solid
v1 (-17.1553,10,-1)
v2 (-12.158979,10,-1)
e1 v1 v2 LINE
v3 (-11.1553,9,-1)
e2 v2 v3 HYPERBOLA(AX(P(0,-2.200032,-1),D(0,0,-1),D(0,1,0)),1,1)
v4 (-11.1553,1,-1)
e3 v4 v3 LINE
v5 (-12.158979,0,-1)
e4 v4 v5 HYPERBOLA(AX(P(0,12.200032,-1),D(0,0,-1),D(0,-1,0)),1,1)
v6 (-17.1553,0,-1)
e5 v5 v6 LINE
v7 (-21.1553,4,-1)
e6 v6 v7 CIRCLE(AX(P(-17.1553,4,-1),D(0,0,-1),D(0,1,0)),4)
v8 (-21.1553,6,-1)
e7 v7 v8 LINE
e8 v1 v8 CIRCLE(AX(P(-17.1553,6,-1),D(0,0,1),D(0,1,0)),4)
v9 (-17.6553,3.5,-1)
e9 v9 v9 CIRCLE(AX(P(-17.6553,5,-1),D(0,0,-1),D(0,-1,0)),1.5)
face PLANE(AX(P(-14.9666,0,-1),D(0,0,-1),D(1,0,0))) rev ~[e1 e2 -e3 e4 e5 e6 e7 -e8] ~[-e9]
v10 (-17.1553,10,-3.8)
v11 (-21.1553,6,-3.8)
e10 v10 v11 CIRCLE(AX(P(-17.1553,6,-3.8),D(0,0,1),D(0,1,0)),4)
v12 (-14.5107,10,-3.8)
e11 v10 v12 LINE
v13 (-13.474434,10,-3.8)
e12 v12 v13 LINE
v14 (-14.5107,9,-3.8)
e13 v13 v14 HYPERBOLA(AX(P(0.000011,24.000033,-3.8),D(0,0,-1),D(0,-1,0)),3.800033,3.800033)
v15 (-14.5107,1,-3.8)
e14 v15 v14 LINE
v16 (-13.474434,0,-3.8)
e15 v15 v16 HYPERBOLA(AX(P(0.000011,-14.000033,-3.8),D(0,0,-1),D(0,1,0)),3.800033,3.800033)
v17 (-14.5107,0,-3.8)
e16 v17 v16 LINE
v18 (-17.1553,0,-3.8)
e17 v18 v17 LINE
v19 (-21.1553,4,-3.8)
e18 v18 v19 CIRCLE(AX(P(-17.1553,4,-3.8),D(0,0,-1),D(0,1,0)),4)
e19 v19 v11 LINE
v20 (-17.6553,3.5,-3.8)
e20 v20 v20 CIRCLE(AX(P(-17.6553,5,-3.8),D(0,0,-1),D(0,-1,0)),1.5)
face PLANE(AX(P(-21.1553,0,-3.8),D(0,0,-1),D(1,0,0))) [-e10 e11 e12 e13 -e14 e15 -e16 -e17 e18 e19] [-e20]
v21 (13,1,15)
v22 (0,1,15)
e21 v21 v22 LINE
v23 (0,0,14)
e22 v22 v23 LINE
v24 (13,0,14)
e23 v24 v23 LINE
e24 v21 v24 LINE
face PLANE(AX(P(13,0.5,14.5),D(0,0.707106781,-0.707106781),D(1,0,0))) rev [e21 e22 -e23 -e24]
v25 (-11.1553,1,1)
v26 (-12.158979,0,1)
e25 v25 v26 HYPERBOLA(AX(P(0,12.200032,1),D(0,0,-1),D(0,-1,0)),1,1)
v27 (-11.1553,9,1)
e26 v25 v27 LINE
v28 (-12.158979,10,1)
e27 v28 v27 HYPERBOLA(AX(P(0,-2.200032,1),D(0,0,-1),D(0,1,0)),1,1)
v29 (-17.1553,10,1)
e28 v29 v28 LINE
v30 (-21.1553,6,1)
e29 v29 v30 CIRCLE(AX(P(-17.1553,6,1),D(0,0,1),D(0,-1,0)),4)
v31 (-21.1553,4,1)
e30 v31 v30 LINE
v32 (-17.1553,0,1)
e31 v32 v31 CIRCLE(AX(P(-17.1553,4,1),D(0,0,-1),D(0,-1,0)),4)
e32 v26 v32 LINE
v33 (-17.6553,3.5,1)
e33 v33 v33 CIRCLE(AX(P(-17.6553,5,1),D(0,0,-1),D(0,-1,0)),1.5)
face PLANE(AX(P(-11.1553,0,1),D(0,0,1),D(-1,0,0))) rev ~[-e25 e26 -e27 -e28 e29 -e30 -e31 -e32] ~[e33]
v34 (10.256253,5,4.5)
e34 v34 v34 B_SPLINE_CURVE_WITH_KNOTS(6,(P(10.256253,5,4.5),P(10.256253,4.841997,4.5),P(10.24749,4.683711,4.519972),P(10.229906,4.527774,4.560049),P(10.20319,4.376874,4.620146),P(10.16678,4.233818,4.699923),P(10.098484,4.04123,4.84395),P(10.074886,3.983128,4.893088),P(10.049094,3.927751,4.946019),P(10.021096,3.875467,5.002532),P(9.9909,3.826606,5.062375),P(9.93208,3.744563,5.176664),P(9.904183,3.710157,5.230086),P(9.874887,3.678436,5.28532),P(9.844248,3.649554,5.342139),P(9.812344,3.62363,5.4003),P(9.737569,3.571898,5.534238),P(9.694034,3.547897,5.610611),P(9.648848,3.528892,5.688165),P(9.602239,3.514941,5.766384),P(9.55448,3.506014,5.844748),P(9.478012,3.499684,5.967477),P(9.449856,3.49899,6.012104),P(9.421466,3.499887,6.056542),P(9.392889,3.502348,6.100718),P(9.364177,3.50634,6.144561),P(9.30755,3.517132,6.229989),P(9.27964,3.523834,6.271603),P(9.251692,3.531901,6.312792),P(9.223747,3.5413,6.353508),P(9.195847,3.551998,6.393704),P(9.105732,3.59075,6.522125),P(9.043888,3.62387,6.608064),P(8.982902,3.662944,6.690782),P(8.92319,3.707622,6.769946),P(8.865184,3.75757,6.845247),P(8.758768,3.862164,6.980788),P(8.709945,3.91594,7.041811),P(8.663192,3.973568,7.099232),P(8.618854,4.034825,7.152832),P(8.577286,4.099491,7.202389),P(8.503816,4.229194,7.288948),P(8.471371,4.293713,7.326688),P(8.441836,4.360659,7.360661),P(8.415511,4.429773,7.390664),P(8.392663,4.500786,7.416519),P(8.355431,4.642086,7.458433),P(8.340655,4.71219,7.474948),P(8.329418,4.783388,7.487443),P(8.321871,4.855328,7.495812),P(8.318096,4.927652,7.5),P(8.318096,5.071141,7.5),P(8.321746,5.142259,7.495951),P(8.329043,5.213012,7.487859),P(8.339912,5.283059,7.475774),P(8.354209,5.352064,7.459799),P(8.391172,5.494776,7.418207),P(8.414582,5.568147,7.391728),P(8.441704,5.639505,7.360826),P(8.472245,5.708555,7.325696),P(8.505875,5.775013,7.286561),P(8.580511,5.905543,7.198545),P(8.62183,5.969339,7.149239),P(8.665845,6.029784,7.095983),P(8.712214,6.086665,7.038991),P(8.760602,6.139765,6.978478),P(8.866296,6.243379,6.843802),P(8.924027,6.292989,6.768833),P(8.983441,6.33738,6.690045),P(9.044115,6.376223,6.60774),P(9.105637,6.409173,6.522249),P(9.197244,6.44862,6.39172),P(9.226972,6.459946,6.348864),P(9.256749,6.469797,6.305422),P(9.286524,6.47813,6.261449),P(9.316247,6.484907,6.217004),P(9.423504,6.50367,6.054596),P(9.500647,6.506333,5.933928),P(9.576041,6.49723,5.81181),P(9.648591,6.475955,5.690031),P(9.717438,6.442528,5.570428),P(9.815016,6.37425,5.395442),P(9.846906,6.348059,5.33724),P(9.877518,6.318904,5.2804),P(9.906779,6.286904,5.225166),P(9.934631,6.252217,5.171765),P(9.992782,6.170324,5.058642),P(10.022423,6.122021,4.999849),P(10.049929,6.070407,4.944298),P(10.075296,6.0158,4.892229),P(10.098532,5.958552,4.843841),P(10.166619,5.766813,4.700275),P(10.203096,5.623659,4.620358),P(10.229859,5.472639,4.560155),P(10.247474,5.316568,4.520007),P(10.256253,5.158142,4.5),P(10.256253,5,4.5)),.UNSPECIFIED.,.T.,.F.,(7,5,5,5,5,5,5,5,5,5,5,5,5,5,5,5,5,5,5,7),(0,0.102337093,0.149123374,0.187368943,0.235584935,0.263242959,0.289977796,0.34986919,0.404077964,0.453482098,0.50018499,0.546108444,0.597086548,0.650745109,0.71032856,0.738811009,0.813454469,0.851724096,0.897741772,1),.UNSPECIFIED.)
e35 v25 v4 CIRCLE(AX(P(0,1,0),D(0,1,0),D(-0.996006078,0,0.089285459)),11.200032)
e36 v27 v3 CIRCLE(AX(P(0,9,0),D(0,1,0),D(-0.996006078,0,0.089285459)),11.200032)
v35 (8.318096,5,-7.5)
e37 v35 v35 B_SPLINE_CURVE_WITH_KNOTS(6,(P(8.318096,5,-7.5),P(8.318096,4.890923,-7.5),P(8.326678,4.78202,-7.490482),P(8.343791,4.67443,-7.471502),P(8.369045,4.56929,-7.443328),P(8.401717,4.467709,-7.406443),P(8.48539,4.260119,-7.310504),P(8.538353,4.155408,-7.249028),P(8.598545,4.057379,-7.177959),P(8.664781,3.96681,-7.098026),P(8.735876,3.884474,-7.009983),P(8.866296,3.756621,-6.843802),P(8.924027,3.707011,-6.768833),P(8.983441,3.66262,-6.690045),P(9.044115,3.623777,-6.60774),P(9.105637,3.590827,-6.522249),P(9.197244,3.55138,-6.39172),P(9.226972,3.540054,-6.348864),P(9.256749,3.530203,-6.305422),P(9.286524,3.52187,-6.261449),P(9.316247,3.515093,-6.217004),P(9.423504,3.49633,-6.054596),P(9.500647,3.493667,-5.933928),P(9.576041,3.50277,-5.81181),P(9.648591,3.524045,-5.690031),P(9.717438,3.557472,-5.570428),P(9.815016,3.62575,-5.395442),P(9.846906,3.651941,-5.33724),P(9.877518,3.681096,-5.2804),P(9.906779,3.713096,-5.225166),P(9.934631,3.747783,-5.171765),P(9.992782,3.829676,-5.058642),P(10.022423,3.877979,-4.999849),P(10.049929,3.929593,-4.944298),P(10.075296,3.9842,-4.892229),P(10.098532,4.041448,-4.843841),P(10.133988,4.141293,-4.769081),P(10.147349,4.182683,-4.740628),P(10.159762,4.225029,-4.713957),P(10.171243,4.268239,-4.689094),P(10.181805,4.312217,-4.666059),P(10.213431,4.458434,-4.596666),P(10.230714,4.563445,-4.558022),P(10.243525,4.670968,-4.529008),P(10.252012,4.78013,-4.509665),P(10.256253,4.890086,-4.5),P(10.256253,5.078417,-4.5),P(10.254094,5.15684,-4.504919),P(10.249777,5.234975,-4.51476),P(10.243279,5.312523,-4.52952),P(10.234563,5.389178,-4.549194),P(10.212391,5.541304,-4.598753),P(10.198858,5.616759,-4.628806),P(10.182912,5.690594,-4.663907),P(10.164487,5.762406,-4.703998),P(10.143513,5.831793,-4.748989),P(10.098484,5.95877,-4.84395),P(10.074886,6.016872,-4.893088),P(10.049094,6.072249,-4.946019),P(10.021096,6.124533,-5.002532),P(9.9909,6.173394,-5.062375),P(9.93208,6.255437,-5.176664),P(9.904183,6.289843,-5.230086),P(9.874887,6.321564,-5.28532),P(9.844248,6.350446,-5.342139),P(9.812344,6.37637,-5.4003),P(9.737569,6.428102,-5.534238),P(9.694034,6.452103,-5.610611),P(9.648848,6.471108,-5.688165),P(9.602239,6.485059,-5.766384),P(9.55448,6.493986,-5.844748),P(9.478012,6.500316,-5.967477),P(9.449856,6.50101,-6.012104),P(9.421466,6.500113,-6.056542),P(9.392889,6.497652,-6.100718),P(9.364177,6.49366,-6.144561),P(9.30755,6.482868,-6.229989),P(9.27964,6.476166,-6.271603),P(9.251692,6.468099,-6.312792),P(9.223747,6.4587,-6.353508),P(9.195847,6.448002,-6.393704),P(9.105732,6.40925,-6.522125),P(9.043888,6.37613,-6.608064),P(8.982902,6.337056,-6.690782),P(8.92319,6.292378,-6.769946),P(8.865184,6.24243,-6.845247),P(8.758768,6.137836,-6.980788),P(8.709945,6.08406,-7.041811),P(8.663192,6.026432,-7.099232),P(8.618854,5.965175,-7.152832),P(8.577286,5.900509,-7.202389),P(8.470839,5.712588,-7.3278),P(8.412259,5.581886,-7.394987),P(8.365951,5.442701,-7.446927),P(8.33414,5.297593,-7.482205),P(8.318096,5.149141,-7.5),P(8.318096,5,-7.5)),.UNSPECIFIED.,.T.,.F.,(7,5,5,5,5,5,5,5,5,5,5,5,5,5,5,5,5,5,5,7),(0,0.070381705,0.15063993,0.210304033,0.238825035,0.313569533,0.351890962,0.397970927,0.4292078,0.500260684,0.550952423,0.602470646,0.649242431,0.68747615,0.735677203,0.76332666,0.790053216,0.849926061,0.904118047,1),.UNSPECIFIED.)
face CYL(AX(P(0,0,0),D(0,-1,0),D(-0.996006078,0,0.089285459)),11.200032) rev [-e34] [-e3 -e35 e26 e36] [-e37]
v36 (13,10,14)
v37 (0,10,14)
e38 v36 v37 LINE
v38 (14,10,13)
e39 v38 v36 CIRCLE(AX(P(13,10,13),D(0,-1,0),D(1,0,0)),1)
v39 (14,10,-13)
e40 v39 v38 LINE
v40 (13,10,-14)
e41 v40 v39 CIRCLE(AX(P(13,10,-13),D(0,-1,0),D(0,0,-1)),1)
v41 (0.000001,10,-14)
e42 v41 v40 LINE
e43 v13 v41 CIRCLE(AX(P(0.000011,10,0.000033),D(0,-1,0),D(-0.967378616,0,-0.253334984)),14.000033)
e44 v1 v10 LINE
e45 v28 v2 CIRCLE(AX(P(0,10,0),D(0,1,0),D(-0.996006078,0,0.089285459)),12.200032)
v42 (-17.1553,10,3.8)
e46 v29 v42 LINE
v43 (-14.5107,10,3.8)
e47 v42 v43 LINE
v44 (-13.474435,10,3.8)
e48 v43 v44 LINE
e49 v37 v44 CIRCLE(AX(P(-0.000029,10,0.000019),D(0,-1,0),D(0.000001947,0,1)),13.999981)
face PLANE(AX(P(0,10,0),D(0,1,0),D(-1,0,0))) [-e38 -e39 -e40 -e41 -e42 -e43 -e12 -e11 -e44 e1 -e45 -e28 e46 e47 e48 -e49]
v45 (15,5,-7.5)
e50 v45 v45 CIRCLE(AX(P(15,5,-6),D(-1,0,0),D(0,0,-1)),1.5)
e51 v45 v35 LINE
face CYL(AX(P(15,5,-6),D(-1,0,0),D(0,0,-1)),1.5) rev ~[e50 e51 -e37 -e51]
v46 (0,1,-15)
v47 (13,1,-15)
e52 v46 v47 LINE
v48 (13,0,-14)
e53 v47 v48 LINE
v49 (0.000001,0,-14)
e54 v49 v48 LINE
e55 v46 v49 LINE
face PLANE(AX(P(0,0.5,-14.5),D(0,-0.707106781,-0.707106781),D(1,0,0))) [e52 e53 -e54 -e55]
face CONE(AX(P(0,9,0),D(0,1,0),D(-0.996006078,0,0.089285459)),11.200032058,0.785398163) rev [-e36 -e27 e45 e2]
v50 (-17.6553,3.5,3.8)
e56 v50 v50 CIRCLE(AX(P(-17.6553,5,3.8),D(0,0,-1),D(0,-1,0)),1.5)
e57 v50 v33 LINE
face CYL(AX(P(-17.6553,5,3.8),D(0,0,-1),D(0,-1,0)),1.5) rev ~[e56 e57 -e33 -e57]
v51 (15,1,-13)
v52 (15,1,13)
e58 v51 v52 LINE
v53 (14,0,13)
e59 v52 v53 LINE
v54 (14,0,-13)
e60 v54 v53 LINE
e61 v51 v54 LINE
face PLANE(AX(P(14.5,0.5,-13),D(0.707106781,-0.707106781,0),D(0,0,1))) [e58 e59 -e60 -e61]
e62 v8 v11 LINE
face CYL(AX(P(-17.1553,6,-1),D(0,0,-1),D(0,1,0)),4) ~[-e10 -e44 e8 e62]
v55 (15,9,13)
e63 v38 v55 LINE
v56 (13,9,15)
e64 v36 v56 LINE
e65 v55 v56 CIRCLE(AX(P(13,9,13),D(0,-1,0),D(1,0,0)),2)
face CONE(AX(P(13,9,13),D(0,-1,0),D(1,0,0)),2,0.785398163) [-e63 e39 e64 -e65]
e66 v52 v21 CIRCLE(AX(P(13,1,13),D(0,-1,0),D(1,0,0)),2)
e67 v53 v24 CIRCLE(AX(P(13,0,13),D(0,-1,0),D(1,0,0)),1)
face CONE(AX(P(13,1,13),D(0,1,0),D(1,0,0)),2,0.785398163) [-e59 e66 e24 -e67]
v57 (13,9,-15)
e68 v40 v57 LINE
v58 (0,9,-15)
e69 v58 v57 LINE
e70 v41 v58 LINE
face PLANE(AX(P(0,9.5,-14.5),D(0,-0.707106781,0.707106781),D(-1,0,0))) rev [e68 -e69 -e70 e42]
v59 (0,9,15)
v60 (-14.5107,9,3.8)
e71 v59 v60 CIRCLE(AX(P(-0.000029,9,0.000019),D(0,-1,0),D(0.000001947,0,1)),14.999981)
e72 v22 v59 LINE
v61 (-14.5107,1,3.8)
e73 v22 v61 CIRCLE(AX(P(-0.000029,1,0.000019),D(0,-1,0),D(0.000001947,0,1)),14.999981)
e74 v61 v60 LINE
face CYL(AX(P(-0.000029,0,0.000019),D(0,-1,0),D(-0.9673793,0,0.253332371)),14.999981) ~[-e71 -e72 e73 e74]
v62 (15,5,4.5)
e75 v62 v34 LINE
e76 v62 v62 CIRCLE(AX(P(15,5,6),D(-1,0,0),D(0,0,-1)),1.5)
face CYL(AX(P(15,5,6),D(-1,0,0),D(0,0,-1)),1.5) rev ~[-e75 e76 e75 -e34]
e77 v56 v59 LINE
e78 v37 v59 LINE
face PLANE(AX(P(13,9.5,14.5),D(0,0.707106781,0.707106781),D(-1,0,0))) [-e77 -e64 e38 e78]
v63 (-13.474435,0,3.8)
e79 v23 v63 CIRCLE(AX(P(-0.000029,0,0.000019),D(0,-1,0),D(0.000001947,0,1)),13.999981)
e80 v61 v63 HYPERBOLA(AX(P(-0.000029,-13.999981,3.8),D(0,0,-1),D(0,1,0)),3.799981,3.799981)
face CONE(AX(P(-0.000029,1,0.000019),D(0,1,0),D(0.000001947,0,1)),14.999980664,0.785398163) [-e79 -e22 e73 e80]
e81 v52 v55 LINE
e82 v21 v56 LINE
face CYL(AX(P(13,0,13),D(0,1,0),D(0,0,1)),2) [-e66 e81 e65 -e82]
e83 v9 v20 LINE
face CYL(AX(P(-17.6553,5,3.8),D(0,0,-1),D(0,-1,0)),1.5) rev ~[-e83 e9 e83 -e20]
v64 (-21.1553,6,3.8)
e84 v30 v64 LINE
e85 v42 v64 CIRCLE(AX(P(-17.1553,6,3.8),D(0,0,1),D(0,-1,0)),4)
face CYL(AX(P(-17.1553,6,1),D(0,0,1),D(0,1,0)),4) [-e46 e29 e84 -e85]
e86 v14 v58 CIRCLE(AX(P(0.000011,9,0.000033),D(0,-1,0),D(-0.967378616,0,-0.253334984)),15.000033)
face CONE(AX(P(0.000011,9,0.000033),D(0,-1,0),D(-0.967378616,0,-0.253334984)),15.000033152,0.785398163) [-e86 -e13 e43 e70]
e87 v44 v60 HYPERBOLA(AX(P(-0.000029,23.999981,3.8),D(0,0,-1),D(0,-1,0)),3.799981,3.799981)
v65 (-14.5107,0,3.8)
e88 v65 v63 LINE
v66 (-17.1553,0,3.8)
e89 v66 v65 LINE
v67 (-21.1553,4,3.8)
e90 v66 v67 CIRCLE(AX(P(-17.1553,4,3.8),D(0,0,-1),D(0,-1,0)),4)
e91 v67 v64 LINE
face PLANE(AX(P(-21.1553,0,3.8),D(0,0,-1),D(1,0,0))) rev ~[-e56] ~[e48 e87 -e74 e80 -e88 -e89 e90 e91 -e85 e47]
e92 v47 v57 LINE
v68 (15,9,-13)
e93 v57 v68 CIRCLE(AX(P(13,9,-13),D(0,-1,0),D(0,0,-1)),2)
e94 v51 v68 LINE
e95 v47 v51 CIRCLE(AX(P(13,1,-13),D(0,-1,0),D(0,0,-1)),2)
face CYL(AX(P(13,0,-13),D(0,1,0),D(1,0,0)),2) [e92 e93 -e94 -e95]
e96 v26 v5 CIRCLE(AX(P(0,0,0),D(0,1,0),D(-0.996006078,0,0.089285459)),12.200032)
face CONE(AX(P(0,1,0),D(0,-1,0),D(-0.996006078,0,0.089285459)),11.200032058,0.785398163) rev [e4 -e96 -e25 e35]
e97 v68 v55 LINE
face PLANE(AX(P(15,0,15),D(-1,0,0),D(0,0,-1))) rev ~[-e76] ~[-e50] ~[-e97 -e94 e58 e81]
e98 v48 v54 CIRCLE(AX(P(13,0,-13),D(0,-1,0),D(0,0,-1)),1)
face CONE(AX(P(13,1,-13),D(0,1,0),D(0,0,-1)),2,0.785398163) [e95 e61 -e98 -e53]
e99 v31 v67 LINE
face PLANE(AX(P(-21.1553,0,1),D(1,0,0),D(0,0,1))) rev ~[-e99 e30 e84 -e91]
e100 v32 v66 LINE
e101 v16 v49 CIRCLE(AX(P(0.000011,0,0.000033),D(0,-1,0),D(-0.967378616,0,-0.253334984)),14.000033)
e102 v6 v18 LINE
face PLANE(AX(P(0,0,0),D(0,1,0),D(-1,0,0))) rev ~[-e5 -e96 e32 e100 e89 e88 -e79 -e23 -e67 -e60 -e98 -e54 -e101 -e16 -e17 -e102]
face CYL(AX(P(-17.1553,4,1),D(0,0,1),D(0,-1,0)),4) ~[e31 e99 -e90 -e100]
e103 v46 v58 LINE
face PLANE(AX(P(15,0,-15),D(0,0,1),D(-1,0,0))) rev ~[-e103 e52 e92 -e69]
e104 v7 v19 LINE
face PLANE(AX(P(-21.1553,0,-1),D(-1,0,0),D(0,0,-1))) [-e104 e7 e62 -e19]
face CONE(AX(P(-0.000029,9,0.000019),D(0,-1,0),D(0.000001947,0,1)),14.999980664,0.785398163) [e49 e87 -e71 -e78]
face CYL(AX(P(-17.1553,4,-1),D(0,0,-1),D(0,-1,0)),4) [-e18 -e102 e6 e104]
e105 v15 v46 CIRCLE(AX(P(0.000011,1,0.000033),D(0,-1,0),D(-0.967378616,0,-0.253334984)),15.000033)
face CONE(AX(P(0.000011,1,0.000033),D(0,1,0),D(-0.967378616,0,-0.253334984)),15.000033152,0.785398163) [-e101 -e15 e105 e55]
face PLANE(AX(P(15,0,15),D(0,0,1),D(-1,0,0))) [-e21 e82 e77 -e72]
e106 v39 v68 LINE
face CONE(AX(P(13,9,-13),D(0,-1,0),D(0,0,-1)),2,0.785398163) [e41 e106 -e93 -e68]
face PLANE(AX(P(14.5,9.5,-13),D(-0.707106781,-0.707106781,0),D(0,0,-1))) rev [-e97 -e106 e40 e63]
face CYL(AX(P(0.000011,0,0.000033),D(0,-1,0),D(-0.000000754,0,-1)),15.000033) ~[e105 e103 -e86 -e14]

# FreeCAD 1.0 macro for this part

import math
import FreeCAD as App
import Part
import Sketcher
Q = App.Units.Quantity


def edges_at(feature, points):
    """Names of the edges that pass closest to the given points."""
    edges = feature.Shape.Edges
    near = lambda p: min(range(len(edges)), key=lambda i: edges[i].distToShape(Part.Vertex(*p))[0])
    return sorted({f"Edge{near(p) + 1}" for p in points})

doc = App.newDocument("Part")
body = doc.addObject("PartDesign::Body", "Body")

sketch1 = body.newObject("Sketcher::SketchObject", "Sketch")
sketch1.AttachmentSupport = (doc.getObject("XZ_Plane"), [""])
sketch1.MapMode = "FlatFace"
sketch1.addGeometry([
    Part.ArcOfCircle(Part.Circle(App.Vector(0, 0, 0), App.Vector(0, 0, 1), 11.2), math.radians(-175), math.radians(175)),
    Part.LineSegment(App.Vector(-11.2, 1, 0), App.Vector(-21.2, 1, 0)),
    Part.LineSegment(App.Vector(-21.2, 1, 0), App.Vector(-21.2, 3.8, 0)),
    Part.LineSegment(App.Vector(-21.2, 3.8, 0), App.Vector(-14.5, 3.8, 0)),
    Part.ArcOfCircle(Part.Circle(App.Vector(0, 0, 0), App.Vector(0, 0, 1), 15), math.radians(90), math.radians(165)),
    Part.LineSegment(App.Vector(0, 15, 0), App.Vector(15, 15, 0)),
    Part.LineSegment(App.Vector(15, 15, 0), App.Vector(15, -15, 0)),
    Part.LineSegment(App.Vector(15, -15, 0), App.Vector(0, -15, 0)),
    Part.ArcOfCircle(Part.Circle(App.Vector(0, 0, 0), App.Vector(0, 0, 1), 15), math.radians(-165), math.radians(-90)),
    Part.LineSegment(App.Vector(-14.5, -3.8, 0), App.Vector(-21.2, -3.8, 0)),
    Part.LineSegment(App.Vector(-21.2, -3.8, 0), App.Vector(-21.2, -1, 0)),
    Part.LineSegment(App.Vector(-21.2, -1, 0), App.Vector(-11.2, -1, 0)),
], False)
sketch1.addConstraint([
    Sketcher.Constraint("Coincident", 0, 2, 1, 1),
    Sketcher.Constraint("Coincident", 1, 2, 2, 1),
    Sketcher.Constraint("Coincident", 2, 2, 3, 1),
    Sketcher.Constraint("Coincident", 3, 2, 4, 2),
    Sketcher.Constraint("Tangent", 4, 1, 5, 1),
    Sketcher.Constraint("Coincident", 5, 2, 6, 1),
    Sketcher.Constraint("Coincident", 6, 2, 7, 1),
    Sketcher.Constraint("Tangent", 7, 2, 8, 2),
    Sketcher.Constraint("Coincident", 8, 1, 9, 1),
    Sketcher.Constraint("Coincident", 9, 2, 10, 1),
    Sketcher.Constraint("Coincident", 10, 2, 11, 1),
    Sketcher.Constraint("Coincident", 11, 2, 0, 1),
    Sketcher.Constraint("Horizontal", 1),
    Sketcher.Constraint("Vertical", 2),
    Sketcher.Constraint("Horizontal", 3),
    Sketcher.Constraint("Horizontal", 5),
    Sketcher.Constraint("Vertical", 6),
    Sketcher.Constraint("Horizontal", 7),
    Sketcher.Constraint("Horizontal", 9),
    Sketcher.Constraint("Vertical", 10),
    Sketcher.Constraint("Horizontal", 11),
    Sketcher.Constraint("Coincident", 0, 3, -1, 1),
    Sketcher.Constraint("Coincident", 4, 3, -1, 1),
    Sketcher.Constraint("Coincident", 8, 3, -1, 1),
    Sketcher.Constraint("Equal", 4, 8),
    Sketcher.Constraint("Symmetric", 2, 2, 9, 2, -1),
    Sketcher.Constraint("Vertical", 0, 2, 11, 2),
    Sketcher.Constraint("Radius", 4, Q("15 mm")),
    Sketcher.Constraint("Radius", 0, Q("11.2 mm")),
    Sketcher.Constraint("DistanceY", 2, 1, 2, 2, Q("2.8 mm")),
    Sketcher.Constraint("DistanceX", 1, 2, 1, 1, Q("10 mm")),
    Sketcher.Constraint("DistanceX", 5, 1, 5, 2, Q("15 mm")),
    Sketcher.Constraint("DistanceY", -1, 1, 0, 2, Q("1 mm")),
])
pad1 = body.newObject("PartDesign::Pad", "Pad")
pad1.Profile = sketch1
pad1.Length = 10
pad1.Reversed = True

sketch2 = body.newObject("Sketcher::SketchObject", "Sketch001")
sketch2.AttachmentSupport = (doc.getObject("YZ_Plane"), [""])
sketch2.MapMode = "FlatFace"
sketch2.AttachmentOffset = App.Placement(App.Vector(0, 0, 15), App.Rotation())
sketch2.addGeometry([
    Part.Circle(App.Vector(5, -6, 0), App.Vector(0, 0, 1), 1.5),
    Part.Circle(App.Vector(5, 6, 0), App.Vector(0, 0, 1), 1.5),
], False)
sketch2.addConstraint([
    Sketcher.Constraint("Equal", 0, 1),
    Sketcher.Constraint("Symmetric", 0, 3, 1, 3, -1),
    Sketcher.Constraint("Diameter", 0, Q("3 mm")),
    Sketcher.Constraint("DistanceX", -1, 1, 0, 3, Q("5 mm")),
    Sketcher.Constraint("DistanceY", 0, 3, -1, 1, Q("6 mm")),
])
doc.recompute()
hole = body.newObject("PartDesign::Hole", "Hole")
hole.Profile = sketch2
hole.ThreadType = "None"
hole.Diameter = 3
hole.DepthType = "Dimension"
hole.Depth = 8
hole.DrillPoint = "Angled"
hole.DrillPointAngle = 118
doc.recompute()

fillet = body.newObject("PartDesign::Fillet", "Fillet")
fillet.Base = (hole, edges_at(hole, [
    (-21.155, 10, 2.4),
    (-21.155, 10, -2.4),
    (-21.155, 0, 2.4),
    (-21.155, 0, -2.4),
]))
fillet.Radius = 4

sketch3 = body.newObject("Sketcher::SketchObject", "Sketch002")
sketch3.AttachmentSupport = (doc.getObject("XY_Plane"), [""])
sketch3.MapMode = "FlatFace"
sketch3.AttachmentOffset = App.Placement(App.Vector(0, 0, 3.8), App.Rotation())
sketch3.addGeometry(Part.Circle(App.Vector(-17.7, 5, 0), App.Vector(0, 0, 1), 1.5), False)
sketch3.addConstraint([
    Sketcher.Constraint("Diameter", 0, Q("3 mm")),
    Sketcher.Constraint("DistanceY", -1, 1, 0, 3, Q("5 mm")),
    Sketcher.Constraint("DistanceX", 0, 3, -1, 1, Q("17.6553 mm")),
])
doc.recompute()
hole2 = body.newObject("PartDesign::Hole", "Hole001")
hole2.Profile = sketch3
hole2.ThreadType = "None"
hole2.Diameter = 3
hole2.DepthType = "Dimension"
hole2.Depth = 8
hole2.DrillPoint = "Angled"
hole2.DrillPointAngle = 118
doc.recompute()

fillet2 = body.newObject("PartDesign::Fillet", "Fillet001")
fillet2.Base = (hole2, edges_at(hole2, [(15, 5, 15), (15, 5, -15)]))
fillet2.Radius = 2
doc.recompute()

chamfer = body.newObject("PartDesign::Chamfer", "Chamfer")
chamfer.Base = (fillet2, edges_at(fillet2, [
    (11.2, 10, 0),
    (11.2, 0, 0),
    (6.5, 10, 15),
    (14.414, 10, 14.414),
    (15, 10, 0),
    (14.414, 10, -14.414),
    (6.5, 10, -15),
    (-9.165, 10, -11.874),
    (-9.165, 10, 11.874),
    (6.5, 0, 15),
    (14.414, 0, 14.414),
    (15, 0, 0),
    (14.414, 0, -14.414),
    (6.5, 0, -15),
    (-9.165, 0, -11.874),
    (-9.165, 0, 11.874),
]))
chamfer.Size = 1

doc.recompute()
